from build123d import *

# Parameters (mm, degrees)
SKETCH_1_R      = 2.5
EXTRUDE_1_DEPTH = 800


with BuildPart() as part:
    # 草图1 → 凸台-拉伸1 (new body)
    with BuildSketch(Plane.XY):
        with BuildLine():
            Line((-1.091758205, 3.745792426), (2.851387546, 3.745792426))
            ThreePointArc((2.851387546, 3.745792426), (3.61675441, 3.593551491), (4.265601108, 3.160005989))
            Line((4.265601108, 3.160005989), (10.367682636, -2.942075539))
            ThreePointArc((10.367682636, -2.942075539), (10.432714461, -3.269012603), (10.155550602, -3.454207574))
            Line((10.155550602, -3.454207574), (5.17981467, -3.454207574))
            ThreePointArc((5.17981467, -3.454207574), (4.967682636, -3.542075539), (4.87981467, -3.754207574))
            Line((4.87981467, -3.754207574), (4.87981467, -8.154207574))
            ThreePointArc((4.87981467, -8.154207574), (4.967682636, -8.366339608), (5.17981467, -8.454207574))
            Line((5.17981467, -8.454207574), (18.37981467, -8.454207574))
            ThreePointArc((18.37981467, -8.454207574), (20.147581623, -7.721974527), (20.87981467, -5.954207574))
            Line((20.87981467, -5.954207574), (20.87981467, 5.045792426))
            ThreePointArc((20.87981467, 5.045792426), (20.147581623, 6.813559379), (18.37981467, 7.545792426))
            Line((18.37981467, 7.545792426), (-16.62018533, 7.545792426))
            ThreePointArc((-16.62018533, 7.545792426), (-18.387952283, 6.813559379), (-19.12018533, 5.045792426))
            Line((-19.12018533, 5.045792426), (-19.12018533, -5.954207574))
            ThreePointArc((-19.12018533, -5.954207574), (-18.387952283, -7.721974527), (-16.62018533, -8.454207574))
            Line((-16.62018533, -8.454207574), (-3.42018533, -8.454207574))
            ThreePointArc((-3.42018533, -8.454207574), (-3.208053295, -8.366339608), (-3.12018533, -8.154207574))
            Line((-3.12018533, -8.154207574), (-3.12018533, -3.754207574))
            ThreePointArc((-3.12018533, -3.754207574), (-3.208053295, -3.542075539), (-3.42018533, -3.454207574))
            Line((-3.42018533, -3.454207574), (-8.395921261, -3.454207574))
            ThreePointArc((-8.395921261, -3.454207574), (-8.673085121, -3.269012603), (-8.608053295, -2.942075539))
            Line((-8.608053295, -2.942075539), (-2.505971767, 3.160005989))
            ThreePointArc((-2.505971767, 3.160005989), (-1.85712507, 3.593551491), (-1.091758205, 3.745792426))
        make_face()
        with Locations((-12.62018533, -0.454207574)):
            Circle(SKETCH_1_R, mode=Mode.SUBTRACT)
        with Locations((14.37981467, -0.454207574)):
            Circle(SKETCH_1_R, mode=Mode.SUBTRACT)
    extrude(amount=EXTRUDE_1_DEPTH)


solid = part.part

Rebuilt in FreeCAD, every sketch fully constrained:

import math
import FreeCAD as App
import Part
import Sketcher

doc = App.newDocument("Part")
body = doc.addObject("PartDesign::Body", "Body")

# Sketch on XY plane
sketch1 = body.newObject("Sketcher::SketchObject", "Sketch")
sketch1.AttachmentSupport = (doc.getObject("XY_Plane"), [""])
sketch1.MapMode = "FlatFace"
sketch1.addGeometry([
    Part.LineSegment(App.Vector(-1.091758, 3.745792, 0), App.Vector(2.851388, 3.745792, 0)),  # 0
    Part.ArcOfCircle(Part.Circle(App.Vector(2.851388, 1.745792, 0), App.Vector(0, 0, 1), 2), math.radians(45), math.radians(90)),  # 1
    Part.LineSegment(App.Vector(4.265601, 3.160006, 0), App.Vector(10.367683, -2.942076, 0)),  # 2
    Part.ArcOfCircle(Part.Circle(App.Vector(10.155551, -3.154208, 0), App.Vector(0, 0, 1), 0.3), math.radians(-90), math.radians(45)),  # 3
    Part.LineSegment(App.Vector(10.155551, -3.454208, 0), App.Vector(5.179815, -3.454208, 0)),  # 4
    Part.ArcOfCircle(Part.Circle(App.Vector(5.179815, -3.754208, 0), App.Vector(0, 0, 1), 0.3), math.radians(90), math.radians(180)),  # 5
    Part.LineSegment(App.Vector(4.879815, -3.754208, 0), App.Vector(4.879815, -8.154208, 0)),  # 6
    Part.ArcOfCircle(Part.Circle(App.Vector(5.179815, -8.154208, 0), App.Vector(0, 0, 1), 0.3), math.radians(-180), math.radians(-90)),  # 7
    Part.LineSegment(App.Vector(5.179815, -8.454208, 0), App.Vector(18.379815, -8.454208, 0)),  # 8
    Part.ArcOfCircle(Part.Circle(App.Vector(18.379815, -5.954208, 0), App.Vector(0, 0, 1), 2.5), math.radians(-90), math.radians(0)),  # 9
    Part.LineSegment(App.Vector(20.879815, -5.954208, 0), App.Vector(20.879815, 5.045792, 0)),  # 10
    Part.ArcOfCircle(Part.Circle(App.Vector(18.379815, 5.045792, 0), App.Vector(0, 0, 1), 2.5), math.radians(0), math.radians(90)),  # 11
    Part.LineSegment(App.Vector(18.379815, 7.545792, 0), App.Vector(-16.620185, 7.545792, 0)),  # 12
    Part.ArcOfCircle(Part.Circle(App.Vector(-16.620185, 5.045792, 0), App.Vector(0, 0, 1), 2.5), math.radians(90), math.radians(180)),  # 13
    Part.LineSegment(App.Vector(-19.120185, 5.045792, 0), App.Vector(-19.120185, -5.954208, 0)),  # 14
    Part.ArcOfCircle(Part.Circle(App.Vector(-16.620185, -5.954208, 0), App.Vector(0, 0, 1), 2.5), math.radians(180), math.radians(270)),  # 15
    Part.LineSegment(App.Vector(-16.620185, -8.454208, 0), App.Vector(-3.420185, -8.454208, 0)),  # 16
    Part.ArcOfCircle(Part.Circle(App.Vector(-3.420185, -8.154208, 0), App.Vector(0, 0, 1), 0.3), math.radians(-90), math.radians(0)),  # 17
    Part.LineSegment(App.Vector(-3.120185, -8.154208, 0), App.Vector(-3.120185, -3.754208, 0)),  # 18
    Part.ArcOfCircle(Part.Circle(App.Vector(-3.420185, -3.754208, 0), App.Vector(0, 0, 1), 0.3), math.radians(0), math.radians(90)),  # 19
    Part.LineSegment(App.Vector(-3.420185, -3.454208, 0), App.Vector(-8.395921, -3.454208, 0)),  # 20
    Part.ArcOfCircle(Part.Circle(App.Vector(-8.395921, -3.154208, 0), App.Vector(0, 0, 1), 0.3), math.radians(135), math.radians(270)),  # 21
    Part.LineSegment(App.Vector(-8.608053, -2.942076, 0), App.Vector(-2.505972, 3.160006, 0)),  # 22
    Part.ArcOfCircle(Part.Circle(App.Vector(-1.091758, 1.745792, 0), App.Vector(0, 0, 1), 2), math.radians(90), math.radians(135)),  # 23
    Part.Circle(App.Vector(-12.620185, -0.454208, 0), App.Vector(0, 0, 1), 2.5),  # 24
    Part.Circle(App.Vector(14.379815, -0.454208, 0), App.Vector(0, 0, 1), 2.5),  # 25
], False)
sketch1.addConstraint([
    Sketcher.Constraint("Tangent", 0, 2, 1, 2),
    Sketcher.Constraint("Tangent", 1, 1, 2, 1),
    Sketcher.Constraint("Tangent", 2, 2, 3, 2),
    Sketcher.Constraint("Tangent", 3, 1, 4, 1),
    Sketcher.Constraint("Tangent", 4, 2, 5, 1),
    Sketcher.Constraint("Tangent", 5, 2, 6, 1),
    Sketcher.Constraint("Tangent", 6, 2, 7, 1),
    Sketcher.Constraint("Tangent", 7, 2, 8, 1),
    Sketcher.Constraint("Tangent", 8, 2, 9, 1),
    Sketcher.Constraint("Tangent", 9, 2, 10, 1),
    Sketcher.Constraint("Tangent", 10, 2, 11, 1),
    Sketcher.Constraint("Tangent", 11, 2, 12, 1),
    Sketcher.Constraint("Tangent", 12, 2, 13, 1),
    Sketcher.Constraint("Tangent", 13, 2, 14, 1),
    Sketcher.Constraint("Tangent", 14, 2, 15, 1),
    Sketcher.Constraint("Tangent", 15, 2, 16, 1),
    Sketcher.Constraint("Tangent", 16, 2, 17, 1),
    Sketcher.Constraint("Tangent", 17, 2, 18, 1),
    Sketcher.Constraint("Tangent", 18, 2, 19, 1),
    Sketcher.Constraint("Tangent", 19, 2, 20, 1),
    Sketcher.Constraint("Tangent", 20, 2, 21, 2),
    Sketcher.Constraint("Tangent", 21, 1, 22, 1),
    Sketcher.Constraint("Tangent", 22, 2, 23, 2),
    Sketcher.Constraint("Tangent", 23, 1, 0, 1),
    Sketcher.Constraint("Horizontal", 0),
    Sketcher.Constraint("Horizontal", 4),
    Sketcher.Constraint("Vertical", 6),
    Sketcher.Constraint("Horizontal", 8),
    Sketcher.Constraint("Vertical", 10),
    Sketcher.Constraint("Horizontal", 12),
    Sketcher.Constraint("Vertical", 14),
    Sketcher.Constraint("Horizontal", 16),
    Sketcher.Constraint("Vertical", 18),
    Sketcher.Constraint("Horizontal", 20),
    Sketcher.Constraint("Equal", 3, 5),
    Sketcher.Constraint("Equal", 5, 7),
    Sketcher.Constraint("Equal", 9, 11),
    Sketcher.Constraint("Equal", 11, 13),
    Sketcher.Constraint("Equal", 13, 15),
    Sketcher.Constraint("Equal", 7, 17),
    Sketcher.Constraint("Equal", 17, 19),
    Sketcher.Constraint("Equal", 19, 21),
    Sketcher.Constraint("Equal", 1, 23),
    Sketcher.Constraint("Equal", 15, 24),
    Sketcher.Constraint("Equal", 24, 25),
    Sketcher.Constraint("Perpendicular", 2, 22),
    Sketcher.Constraint("Horizontal", 9, 3, 15, 3),
    Sketcher.Constraint("Horizontal", 5, 3, 19, 3),
    Sketcher.Constraint("Horizontal", 24, 3, 25, 3),
    Sketcher.Constraint("Horizontal", 2, 2, 21, 1),
    Sketcher.Constraint("Equal", 8, 16),
    Sketcher.Constraint("Equal", 4, 20),
    Sketcher.Constraint("Diameter", 24, 5.0),
    Sketcher.Constraint("Radius", 1, 2.0),
    Sketcher.Constraint("Radius", 3, 0.3),
    Sketcher.Constraint("DistanceX", 12, 2, 12, 1, 35.0),
    Sketcher.Constraint("DistanceY", 10, 1, 10, 2, 11.0),
    Sketcher.Constraint("DistanceX", 8, 1, 8, 2, 13.2),
    Sketcher.Constraint("DistanceY", 6, 2, 6, 1, 4.4),
    Sketcher.Constraint("DistanceX", 13, 3, 24, 3, 4.0),
    Sketcher.Constraint("DistanceX", 25, 3, 9, 3, 4.0),
    Sketcher.Constraint("DistanceY", 3, 1, 25, 3, 3.0),
    Sketcher.Constraint("DistanceY", 3, 3, 1, 3, 4.9),
    Sketcher.Constraint("DistanceX", -1, 1, 1, 1, 4.265601),
    Sketcher.Constraint("DistanceX", 0, 1, 0, 2, 3.943146),
    Sketcher.Constraint("DistanceY", -1, 1, 1, 3, 1.745792),
])
pad1 = body.newObject("PartDesign::Pad", "Pad")
pad1.Profile = sketch1
pad1.Length = 800

doc.recompute()
